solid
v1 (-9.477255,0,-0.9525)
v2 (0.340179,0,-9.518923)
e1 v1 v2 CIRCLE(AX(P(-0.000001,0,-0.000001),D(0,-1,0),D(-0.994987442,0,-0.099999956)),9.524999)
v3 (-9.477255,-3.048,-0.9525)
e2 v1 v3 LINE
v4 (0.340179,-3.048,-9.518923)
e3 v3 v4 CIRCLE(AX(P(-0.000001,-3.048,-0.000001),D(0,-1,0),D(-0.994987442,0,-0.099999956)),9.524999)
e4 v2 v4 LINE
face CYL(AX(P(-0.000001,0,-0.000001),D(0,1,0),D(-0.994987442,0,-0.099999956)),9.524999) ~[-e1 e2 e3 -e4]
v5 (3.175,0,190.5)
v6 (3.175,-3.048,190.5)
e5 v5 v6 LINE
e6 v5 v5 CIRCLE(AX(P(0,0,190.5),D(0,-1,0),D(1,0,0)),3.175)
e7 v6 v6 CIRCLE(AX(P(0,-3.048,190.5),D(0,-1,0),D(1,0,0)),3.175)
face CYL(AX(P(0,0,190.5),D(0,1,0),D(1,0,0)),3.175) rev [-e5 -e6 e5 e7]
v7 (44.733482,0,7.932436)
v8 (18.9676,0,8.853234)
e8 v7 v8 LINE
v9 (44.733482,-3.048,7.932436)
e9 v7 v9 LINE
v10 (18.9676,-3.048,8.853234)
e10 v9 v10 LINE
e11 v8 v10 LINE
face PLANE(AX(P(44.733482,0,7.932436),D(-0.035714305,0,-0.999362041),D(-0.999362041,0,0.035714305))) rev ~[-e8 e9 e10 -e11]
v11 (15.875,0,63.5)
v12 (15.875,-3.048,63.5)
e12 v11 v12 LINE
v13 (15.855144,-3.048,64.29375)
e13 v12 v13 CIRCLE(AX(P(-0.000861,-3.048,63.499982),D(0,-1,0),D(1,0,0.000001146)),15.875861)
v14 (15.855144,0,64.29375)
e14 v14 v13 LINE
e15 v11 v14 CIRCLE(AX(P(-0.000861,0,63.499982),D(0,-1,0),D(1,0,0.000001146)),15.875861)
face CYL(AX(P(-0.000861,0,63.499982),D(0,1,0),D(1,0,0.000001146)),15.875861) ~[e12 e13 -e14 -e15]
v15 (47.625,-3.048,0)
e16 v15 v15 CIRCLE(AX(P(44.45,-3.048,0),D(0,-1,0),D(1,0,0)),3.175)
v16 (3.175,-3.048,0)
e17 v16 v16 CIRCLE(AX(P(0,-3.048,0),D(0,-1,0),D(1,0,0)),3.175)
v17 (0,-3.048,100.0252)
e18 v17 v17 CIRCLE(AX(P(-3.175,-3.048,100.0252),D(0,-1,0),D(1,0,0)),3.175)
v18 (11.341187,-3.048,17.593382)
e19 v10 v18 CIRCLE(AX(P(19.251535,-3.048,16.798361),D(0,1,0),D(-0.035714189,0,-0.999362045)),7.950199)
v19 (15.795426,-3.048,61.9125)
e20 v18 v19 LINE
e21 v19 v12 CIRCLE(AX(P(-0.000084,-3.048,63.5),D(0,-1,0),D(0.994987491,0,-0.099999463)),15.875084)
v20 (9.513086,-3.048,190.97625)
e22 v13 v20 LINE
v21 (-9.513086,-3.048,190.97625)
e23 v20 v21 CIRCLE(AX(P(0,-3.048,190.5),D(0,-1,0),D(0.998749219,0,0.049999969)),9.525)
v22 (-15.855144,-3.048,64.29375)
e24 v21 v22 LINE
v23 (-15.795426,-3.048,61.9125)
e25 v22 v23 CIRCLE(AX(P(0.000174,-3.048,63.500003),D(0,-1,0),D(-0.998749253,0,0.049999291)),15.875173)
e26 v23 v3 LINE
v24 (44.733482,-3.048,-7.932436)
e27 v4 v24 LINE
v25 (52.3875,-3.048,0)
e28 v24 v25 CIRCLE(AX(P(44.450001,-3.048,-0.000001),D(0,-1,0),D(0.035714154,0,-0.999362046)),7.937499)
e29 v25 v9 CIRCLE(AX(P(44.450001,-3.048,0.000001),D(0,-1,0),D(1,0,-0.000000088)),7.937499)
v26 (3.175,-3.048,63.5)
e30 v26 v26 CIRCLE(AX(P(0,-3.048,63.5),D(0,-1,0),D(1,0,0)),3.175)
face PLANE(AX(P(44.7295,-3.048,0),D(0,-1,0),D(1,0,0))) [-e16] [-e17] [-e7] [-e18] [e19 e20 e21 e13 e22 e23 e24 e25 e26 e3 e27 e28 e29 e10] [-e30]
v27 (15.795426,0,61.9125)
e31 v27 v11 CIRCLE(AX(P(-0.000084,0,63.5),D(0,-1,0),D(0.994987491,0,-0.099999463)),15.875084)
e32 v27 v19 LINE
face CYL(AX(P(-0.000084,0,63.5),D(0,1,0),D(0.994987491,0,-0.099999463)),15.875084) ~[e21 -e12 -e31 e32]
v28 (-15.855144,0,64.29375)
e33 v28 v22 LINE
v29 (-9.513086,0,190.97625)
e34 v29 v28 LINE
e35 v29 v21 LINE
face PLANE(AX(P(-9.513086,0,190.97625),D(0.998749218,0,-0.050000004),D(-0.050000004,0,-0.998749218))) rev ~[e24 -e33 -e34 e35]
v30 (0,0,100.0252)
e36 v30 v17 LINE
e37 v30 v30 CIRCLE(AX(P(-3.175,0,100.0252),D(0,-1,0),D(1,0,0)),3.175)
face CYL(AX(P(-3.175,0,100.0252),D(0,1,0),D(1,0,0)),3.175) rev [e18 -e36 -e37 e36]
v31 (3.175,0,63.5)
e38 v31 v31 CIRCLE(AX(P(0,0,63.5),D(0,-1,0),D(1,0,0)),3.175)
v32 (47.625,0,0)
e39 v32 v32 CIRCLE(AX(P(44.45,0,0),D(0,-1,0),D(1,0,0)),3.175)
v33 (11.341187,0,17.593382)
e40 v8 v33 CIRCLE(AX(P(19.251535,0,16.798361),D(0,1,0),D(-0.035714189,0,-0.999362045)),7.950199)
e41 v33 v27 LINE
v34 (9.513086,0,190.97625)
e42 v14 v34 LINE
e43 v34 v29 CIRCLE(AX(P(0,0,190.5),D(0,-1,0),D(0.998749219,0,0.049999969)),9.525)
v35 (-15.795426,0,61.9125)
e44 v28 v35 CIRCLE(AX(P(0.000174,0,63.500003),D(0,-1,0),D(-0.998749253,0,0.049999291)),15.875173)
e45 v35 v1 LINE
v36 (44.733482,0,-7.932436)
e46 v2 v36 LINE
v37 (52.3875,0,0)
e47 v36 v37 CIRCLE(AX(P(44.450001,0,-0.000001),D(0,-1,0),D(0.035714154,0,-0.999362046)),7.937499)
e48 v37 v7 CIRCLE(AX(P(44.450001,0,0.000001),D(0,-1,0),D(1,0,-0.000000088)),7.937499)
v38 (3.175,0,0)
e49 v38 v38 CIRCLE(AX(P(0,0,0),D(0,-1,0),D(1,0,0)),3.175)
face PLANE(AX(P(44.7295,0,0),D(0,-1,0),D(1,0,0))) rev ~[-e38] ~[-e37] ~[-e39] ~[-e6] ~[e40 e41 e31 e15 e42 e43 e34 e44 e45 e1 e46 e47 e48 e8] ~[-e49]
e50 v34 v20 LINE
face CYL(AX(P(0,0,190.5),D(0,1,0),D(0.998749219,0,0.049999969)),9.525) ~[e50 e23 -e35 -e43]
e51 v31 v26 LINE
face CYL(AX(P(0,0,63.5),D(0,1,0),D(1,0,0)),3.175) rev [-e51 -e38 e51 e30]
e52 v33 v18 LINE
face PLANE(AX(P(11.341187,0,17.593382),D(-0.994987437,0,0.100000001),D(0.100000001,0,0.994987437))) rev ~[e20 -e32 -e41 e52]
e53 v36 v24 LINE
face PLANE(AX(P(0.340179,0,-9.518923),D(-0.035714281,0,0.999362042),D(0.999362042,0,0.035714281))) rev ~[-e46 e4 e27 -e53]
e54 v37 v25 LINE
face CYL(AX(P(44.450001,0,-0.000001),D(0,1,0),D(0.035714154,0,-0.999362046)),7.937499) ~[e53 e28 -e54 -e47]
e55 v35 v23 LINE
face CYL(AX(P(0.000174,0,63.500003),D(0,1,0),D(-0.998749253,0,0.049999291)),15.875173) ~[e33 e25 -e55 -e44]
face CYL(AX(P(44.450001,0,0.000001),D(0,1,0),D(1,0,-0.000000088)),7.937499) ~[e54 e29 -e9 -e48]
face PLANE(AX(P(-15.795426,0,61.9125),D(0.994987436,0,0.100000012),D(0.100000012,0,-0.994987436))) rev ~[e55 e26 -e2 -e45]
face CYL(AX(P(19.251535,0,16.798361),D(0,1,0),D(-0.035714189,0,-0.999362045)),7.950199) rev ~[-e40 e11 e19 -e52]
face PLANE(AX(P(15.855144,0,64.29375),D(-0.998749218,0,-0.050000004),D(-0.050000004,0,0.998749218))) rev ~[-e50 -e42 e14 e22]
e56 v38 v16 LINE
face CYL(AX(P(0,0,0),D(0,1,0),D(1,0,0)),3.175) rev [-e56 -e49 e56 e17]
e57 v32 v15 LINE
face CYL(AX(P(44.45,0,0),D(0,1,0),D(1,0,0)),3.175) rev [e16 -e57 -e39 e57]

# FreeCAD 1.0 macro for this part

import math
import FreeCAD as App
import Part
import Sketcher
from FreeCAD import Vector
Q = App.Units.Quantity

doc = App.newDocument("Part")
params = doc.addObject("Spreadsheet::Sheet", "Params")
for row, (alias, value) in enumerate([
    ("sketch1_diameter", "0.25 in"),
    ("sketch1_diameter2", "0.25 in"),
    ("sketch1_diameter3", "0.25 in"),
    ("sketch1_diameter4", "0.25 in"),
    ("sketch1_diameter5", "0.25 in"),
    ("pad1_length", "0.12 in"),
], start=1):
    params.set(f"A{row}", alias)
    params.set(f"B{row}", "=" + value)
    params.setAlias(f"B{row}", alias)

body = doc.addObject("PartDesign::Body", "Body")

# Sketch on XZ plane
sketch1 = body.newObject("Sketcher::SketchObject", "Sketch")
sketch1.AttachmentSupport = (doc.getObject("XZ_Plane"), [""])
sketch1.MapMode = "FlatFace"
sketch1.addGeometry(Part.ArcOfCircle(Part.Circle(Vector(44.450001, -0.000001, 0), Vector(0, 0, 1), 7.937499), math.radians(-87.953294), math.radians(0.000005)), False)
sketch1.addGeometry(Part.ArcOfCircle(Part.Circle(Vector(44.450001, 0.000001, 0), Vector(0, 0, 1), 7.937499), math.radians(-0.000005), math.radians(87.953294)), False)
sketch1.addGeometry(Part.LineSegment(Vector(44.733482, 7.932436, 0), Vector(18.9676, 8.853234, 0)), False)
sketch1.addGeometry(Part.ArcOfCircle(Part.Circle(Vector(19.251535, 16.798361, 0), Vector(0, 0, 1), 7.950199), math.radians(174.260822), math.radians(267.953292)), False)
sketch1.addGeometry(Part.LineSegment(Vector(11.341187, 17.593382, 0), Vector(15.795426, 61.9125, 0)), False)
sketch1.addGeometry(Part.ArcOfCircle(Part.Circle(Vector(-0.000084, 63.5, 0), Vector(0, 0, 1), 15.875084), math.radians(-5.73914), math.radians(0)), False)
sketch1.addGeometry(Part.ArcOfCircle(Part.Circle(Vector(-0.000861, 63.499982, 0), Vector(0, 0, 1), 15.875861), math.radians(0.000066), math.radians(2.865894)), False)
sketch1.addGeometry(Part.LineSegment(Vector(15.855144, 64.29375, 0), Vector(9.513086, 190.97625, 0)), False)
sketch1.addGeometry(Part.ArcOfCircle(Part.Circle(Vector(0, 190.5, 0), Vector(0, 0, 1), 9.525), math.radians(2.865982), math.radians(177.134018)), False)
sketch1.addGeometry(Part.LineSegment(Vector(-9.513086, 190.97625, 0), Vector(-15.855144, 64.29375, 0)), False)
sketch1.addGeometry(Part.ArcOfCircle(Part.Circle(Vector(0.000174, 63.500003, 0), Vector(0, 0, 1), 15.875173), math.radians(177.134057), math.radians(185.739117)), False)
sketch1.addGeometry(Part.LineSegment(Vector(-15.795426, 61.9125, 0), Vector(-9.477255, -0.9525, 0)), False)
sketch1.addGeometry(Part.ArcOfCircle(Part.Circle(Vector(-0.000001, -0.000001, 0), Vector(0, 0, 1), 9.524999), math.radians(-174.260832), math.radians(-87.953281)), False)
sketch1.addGeometry(Part.LineSegment(Vector(0.340179, -9.518923, 0), Vector(44.733482, -7.932436, 0)), False)
sketch1.addGeometry(Part.Circle(Vector(0, 0, 0), Vector(0, 0, 1), 3.175), False)
sketch1.addGeometry(Part.Circle(Vector(0, 63.5, 0), Vector(0, 0, 1), 3.175), False)
sketch1.addGeometry(Part.Circle(Vector(44.45, 0, 0), Vector(0, 0, 1), 3.175), False)
sketch1.addGeometry(Part.Circle(Vector(-3.175, 100.0252, 0), Vector(0, 0, 1), 3.175), False)
sketch1.addGeometry(Part.Circle(Vector(0, 190.5, 0), Vector(0, 0, 1), 3.175), False)
sketch1.addConstraint(Sketcher.Constraint("Coincident", 0, 2, 1, 1))
sketch1.addConstraint(Sketcher.Constraint("Coincident", 1, 2, 2, 1))
sketch1.addConstraint(Sketcher.Constraint("Coincident", 2, 2, 3, 2))
sketch1.addConstraint(Sketcher.Constraint("Coincident", 3, 1, 4, 1))
sketch1.addConstraint(Sketcher.Constraint("Coincident", 4, 2, 5, 1))
sketch1.addConstraint(Sketcher.Constraint("Coincident", 5, 2, 6, 1))
sketch1.addConstraint(Sketcher.Constraint("Coincident", 6, 2, 7, 1))
sketch1.addConstraint(Sketcher.Constraint("Coincident", 7, 2, 8, 1))
sketch1.addConstraint(Sketcher.Constraint("Coincident", 8, 2, 9, 1))
sketch1.addConstraint(Sketcher.Constraint("Coincident", 9, 2, 10, 1))
sketch1.addConstraint(Sketcher.Constraint("Coincident", 10, 2, 11, 1))
sketch1.addConstraint(Sketcher.Constraint("Coincident", 11, 2, 12, 1))
sketch1.addConstraint(Sketcher.Constraint("Coincident", 12, 2, 13, 1))
sketch1.addConstraint(Sketcher.Constraint("Coincident", 13, 2, 0, 1))
sketch1.addConstraint(Sketcher.Constraint("Coincident", 12, 3, -1, 1))
sketch1.addConstraint(Sketcher.Constraint("Coincident", 14, 3, -1, 1))
sketch1.addConstraint(Sketcher.Constraint("Coincident", 1, 3, 0, 3))
sketch1.addConstraint(Sketcher.Constraint("Coincident", 16, 3, 0, 3))
sketch1.addConstraint(Sketcher.Constraint("Coincident", 18, 3, 8, 3))
sketch1.addConstraint(Sketcher.Constraint("PointOnObject", 0, 3, -1))
sketch1.addConstraint(Sketcher.Constraint("PointOnObject", 8, 3, -2))
sketch1.addConstraint(Sketcher.Constraint("PointOnObject", 15, 3, -2))
sketch1.addConstraint(Sketcher.Constraint("PointOnObject", 0, 2, -1))
sketch1.addConstraint(Sketcher.Constraint("Diameter", 14, Q("0.25 in")))
sketch1.addConstraint(Sketcher.Constraint("Diameter", 15, Q("0.25 in")))
sketch1.addConstraint(Sketcher.Constraint("Diameter", 16, Q("0.25 in")))
sketch1.addConstraint(Sketcher.Constraint("Diameter", 17, Q("0.25 in")))
sketch1.addConstraint(Sketcher.Constraint("Diameter", 18, Q("0.25 in")))
sketch1.addConstraint(Sketcher.Constraint("Radius", 0, Q("0.3125 in")))
sketch1.addConstraint(Sketcher.Constraint("Radius", 3, Q("0.313 in")))
sketch1.addConstraint(Sketcher.Constraint("Radius", 8, Q("0.375 in")))
sketch1.addConstraint(Sketcher.Constraint("Radius", 12, Q("0.375 in")))
sketch1.addConstraint(Sketcher.Constraint("DistanceY", 5, 3, 8, 3, Q("5 in")))
sketch1.addConstraint(Sketcher.Constraint("DistanceY", 10, 3, 18, 3, Q("4.9999999 in")))
sketch1.addConstraint(Sketcher.Constraint("DistanceY", 15, 3, 18, 3, Q("5 in")))
sketch1.addConstraint(Sketcher.Constraint("DistanceY", -1, 1, 5, 3, Q("2.5 in")))
sketch1.addConstraint(Sketcher.Constraint("DistanceY", -1, 1, 5, 2, Q("2.5 in")))
sketch1.addConstraint(Sketcher.Constraint("DistanceX", -1, 1, 0, 3, Q("1.75 in")))
sketch1.addConstraint(Sketcher.Constraint("DistanceX", 17, 3, -1, 1, Q("0.125 in")))
sketch1.addConstraint(Sketcher.Constraint("DistanceY", -1, 1, 17, 3, Q("3.938 in")))
sketch1.addConstraint(Sketcher.Constraint("DistanceY", -1, 1, 4, 2, Q("2.4375 in")))
sketch1.addConstraint(Sketcher.Constraint("DistanceX", -1, 1, 5, 2, Q("0.625 in")))
sketch1.addConstraint(Sketcher.Constraint("DistanceY", -1, 1, 6, 2, Q("2.53125 in")))
sketch1.addConstraint(Sketcher.Constraint("DistanceY", -1, 1, 9, 2, Q("2.53125 in")))
sketch1.addConstraint(Sketcher.Constraint("DistanceY", -1, 1, 10, 2, Q("2.4375 in")))
sketch1.addConstraint(Sketcher.Constraint("Radius", 6, Q("15.875861 mm")))
sketch1.addConstraint(Sketcher.Constraint("DistanceY", 11, 2, -1, 1, Q("0.0375 in")))
sketch1.addConstraint(Sketcher.Constraint("Radius", 5, Q("15.875084 mm")))
sketch1.addConstraint(Sketcher.Constraint("Radius", 10, Q("15.875173 mm")))
sketch1.addConstraint(Sketcher.Constraint("DistanceY", 3, 3, 3, 1, Q("0.0313 in")))
sketch1.addConstraint(Sketcher.Constraint("DistanceY", 6, 2, 7, 2, Q("4.9875 in")))
sketch1.addConstraint(Sketcher.Constraint("DistanceX", -1, 1, 2, 2, Q("18.9676 mm")))
sketch1.addConstraint(Sketcher.Constraint("Distance", 2, Q("25.78233 mm")))
sketch1.addConstraint(Sketcher.Constraint("Distance", 4, Q("44.54239 mm")))
sketch1.addConstraint(Sketcher.Constraint("Distance", 9, Q("126.841151 mm")))
sketch1.addConstraint(Sketcher.Constraint("DistanceY", -1, 1, 3, 3, Q("16.798361 mm")))
sketch1.addConstraint(Sketcher.Constraint("DistanceY", -1, 1, 6, 3, Q("63.499982 mm")))
sketch1.addConstraint(Sketcher.Constraint("DistanceY", -1, 1, 8, 2, Q("190.97625 mm")))
sketch1.addConstraint(Sketcher.Constraint("DistanceX", -1, 1, 12, 2, Q("0.340179 mm")))
sketch1.addConstraint(Sketcher.Constraint("DistanceX", 0, 3, 13, 2, Q("0.283481 mm")))
sketch1.setExpression("Constraints[23]", "Params.sketch1_diameter")
sketch1.setExpression("Constraints[24]", "Params.sketch1_diameter2")
sketch1.setExpression("Constraints[25]", "Params.sketch1_diameter3")
sketch1.setExpression("Constraints[26]", "Params.sketch1_diameter4")
sketch1.setExpression("Constraints[27]", "Params.sketch1_diameter5")
pad1 = body.newObject("PartDesign::Pad", "Pad")
pad1.Profile = sketch1
pad1.setExpression("Length", "Params.pad1_length")

doc.recompute()
